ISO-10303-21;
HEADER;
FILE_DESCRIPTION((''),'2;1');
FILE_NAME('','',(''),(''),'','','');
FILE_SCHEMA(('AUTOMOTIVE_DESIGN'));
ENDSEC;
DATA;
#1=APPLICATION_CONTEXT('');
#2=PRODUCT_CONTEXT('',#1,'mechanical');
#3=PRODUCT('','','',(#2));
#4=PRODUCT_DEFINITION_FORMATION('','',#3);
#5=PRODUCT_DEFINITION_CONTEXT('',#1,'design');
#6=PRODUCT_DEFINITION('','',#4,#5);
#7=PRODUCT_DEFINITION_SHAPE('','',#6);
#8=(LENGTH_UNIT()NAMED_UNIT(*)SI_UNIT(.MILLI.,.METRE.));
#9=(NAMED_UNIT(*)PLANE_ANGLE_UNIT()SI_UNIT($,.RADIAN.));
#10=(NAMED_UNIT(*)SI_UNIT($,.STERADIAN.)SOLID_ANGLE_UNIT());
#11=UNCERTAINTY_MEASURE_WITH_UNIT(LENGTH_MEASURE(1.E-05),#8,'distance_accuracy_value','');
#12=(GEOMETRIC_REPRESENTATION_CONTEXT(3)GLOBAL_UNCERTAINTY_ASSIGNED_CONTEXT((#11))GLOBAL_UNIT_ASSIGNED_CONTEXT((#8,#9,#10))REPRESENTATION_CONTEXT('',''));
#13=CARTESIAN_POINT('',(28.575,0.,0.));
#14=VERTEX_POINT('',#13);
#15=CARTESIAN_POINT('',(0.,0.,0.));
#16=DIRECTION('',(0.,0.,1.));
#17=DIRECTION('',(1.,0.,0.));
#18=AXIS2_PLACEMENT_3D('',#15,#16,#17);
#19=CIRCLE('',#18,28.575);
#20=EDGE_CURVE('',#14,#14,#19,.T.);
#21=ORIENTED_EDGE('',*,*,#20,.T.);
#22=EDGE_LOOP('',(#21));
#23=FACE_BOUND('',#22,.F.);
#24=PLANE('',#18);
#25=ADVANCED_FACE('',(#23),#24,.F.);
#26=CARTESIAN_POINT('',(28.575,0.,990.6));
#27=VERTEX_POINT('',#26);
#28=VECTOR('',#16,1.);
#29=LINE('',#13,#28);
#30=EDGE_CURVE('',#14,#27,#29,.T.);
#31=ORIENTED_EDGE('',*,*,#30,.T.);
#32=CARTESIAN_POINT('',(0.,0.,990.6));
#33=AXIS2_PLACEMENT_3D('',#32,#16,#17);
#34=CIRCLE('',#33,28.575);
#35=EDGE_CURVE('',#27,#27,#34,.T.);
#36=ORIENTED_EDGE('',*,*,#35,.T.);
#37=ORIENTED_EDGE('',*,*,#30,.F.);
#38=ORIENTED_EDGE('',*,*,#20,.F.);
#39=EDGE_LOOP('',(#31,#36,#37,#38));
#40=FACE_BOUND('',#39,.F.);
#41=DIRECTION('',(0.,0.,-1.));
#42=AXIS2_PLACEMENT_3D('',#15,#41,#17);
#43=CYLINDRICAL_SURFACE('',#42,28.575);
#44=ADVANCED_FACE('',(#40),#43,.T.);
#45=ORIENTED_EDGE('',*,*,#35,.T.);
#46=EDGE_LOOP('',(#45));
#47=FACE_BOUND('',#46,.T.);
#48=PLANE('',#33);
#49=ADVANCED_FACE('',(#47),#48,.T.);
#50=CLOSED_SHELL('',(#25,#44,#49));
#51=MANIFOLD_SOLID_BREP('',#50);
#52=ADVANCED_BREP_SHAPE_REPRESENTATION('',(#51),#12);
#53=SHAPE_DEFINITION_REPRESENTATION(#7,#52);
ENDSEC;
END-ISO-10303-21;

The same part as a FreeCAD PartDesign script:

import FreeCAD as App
import Part
import Sketcher
from FreeCAD import Vector
Q = App.Units.Quantity

doc = App.newDocument("Part")
body = doc.addObject("PartDesign::Body", "Body")

# Sketch on XY plane
sketch1 = doc.addObject("Sketcher::SketchObject", "Sketch")
body.addObject(sketch1)
sketch1.AttachmentSupport = (doc.XY_Plane, [""])
sketch1.MapMode = "FlatFace"
sketch1.addGeometry(Part.Circle(Vector(0, 0, 0), Vector(0, 0, 1), 28.575), False)
sketch1.addConstraint(Sketcher.Constraint("Coincident", 0, 3, -1, 1))
sketch1.addConstraint(Sketcher.Constraint("Diameter", 0, Q("2.25 in")))
pad1 = doc.addObject("PartDesign::Pad", "Pad")
body.addObject(pad1)
pad1.Profile = sketch1
pad1.Length = Q("39 in")

doc.recompute()
